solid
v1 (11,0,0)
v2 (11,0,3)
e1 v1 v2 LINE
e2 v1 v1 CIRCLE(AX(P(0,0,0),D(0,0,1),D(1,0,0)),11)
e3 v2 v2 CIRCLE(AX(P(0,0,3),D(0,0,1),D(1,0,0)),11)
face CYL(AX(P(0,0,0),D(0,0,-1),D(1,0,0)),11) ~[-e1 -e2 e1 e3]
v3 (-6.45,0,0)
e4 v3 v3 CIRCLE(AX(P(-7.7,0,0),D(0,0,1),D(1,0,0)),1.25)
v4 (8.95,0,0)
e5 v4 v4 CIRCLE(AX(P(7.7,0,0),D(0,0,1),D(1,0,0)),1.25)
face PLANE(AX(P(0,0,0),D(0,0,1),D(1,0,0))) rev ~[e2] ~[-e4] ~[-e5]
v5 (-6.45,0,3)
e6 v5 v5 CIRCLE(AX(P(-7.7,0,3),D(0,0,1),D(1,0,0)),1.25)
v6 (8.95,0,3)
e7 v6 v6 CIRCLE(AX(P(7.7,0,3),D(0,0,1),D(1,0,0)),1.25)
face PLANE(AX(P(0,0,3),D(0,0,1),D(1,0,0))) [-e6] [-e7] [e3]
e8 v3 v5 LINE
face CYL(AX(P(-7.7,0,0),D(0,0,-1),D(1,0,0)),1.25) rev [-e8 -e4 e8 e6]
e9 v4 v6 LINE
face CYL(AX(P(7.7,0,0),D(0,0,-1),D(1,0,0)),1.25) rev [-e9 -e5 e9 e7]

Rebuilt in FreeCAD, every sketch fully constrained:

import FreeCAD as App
import Part
import Sketcher

V = App.Vector

doc = App.newDocument("Part")
body = doc.addObject("PartDesign::Body", "Body")

# Sketch on XY plane
sketch1 = body.newObject("Sketcher::SketchObject", "Sketch")
sketch1.AttachmentSupport = (doc.getObject("XY_Plane"), [""])
sketch1.MapMode = "FlatFace"
sketch1.addGeometry([
    Part.Circle(V(0, 0, 0), V(0, 0, 1), 11),
    Part.Circle(V(-7.7, 0, 0), V(0, 0, 1), 1.2),
    Part.Circle(V(7.7, 0, 0), V(0, 0, 1), 1.2),
], False)
sketch1.addConstraint([
    Sketcher.Constraint("Coincident", 0, 3, -1, 1),
    Sketcher.Constraint("Equal", 1, 2),
    Sketcher.Constraint("Symmetric", 1, 3, 2, 3, -1, 1),
    Sketcher.Constraint("PointOnObject", 1, 3, -1),
    Sketcher.Constraint("Diameter", 0, 22.0),
    Sketcher.Constraint("Diameter", 1, 2.5),
    Sketcher.Constraint("DistanceX", 1, 3, 2, 3, 15.4),
])
pad1 = body.newObject("PartDesign::Pad", "Pad")
pad1.Profile = sketch1
pad1.Length = 3

doc.recompute()
